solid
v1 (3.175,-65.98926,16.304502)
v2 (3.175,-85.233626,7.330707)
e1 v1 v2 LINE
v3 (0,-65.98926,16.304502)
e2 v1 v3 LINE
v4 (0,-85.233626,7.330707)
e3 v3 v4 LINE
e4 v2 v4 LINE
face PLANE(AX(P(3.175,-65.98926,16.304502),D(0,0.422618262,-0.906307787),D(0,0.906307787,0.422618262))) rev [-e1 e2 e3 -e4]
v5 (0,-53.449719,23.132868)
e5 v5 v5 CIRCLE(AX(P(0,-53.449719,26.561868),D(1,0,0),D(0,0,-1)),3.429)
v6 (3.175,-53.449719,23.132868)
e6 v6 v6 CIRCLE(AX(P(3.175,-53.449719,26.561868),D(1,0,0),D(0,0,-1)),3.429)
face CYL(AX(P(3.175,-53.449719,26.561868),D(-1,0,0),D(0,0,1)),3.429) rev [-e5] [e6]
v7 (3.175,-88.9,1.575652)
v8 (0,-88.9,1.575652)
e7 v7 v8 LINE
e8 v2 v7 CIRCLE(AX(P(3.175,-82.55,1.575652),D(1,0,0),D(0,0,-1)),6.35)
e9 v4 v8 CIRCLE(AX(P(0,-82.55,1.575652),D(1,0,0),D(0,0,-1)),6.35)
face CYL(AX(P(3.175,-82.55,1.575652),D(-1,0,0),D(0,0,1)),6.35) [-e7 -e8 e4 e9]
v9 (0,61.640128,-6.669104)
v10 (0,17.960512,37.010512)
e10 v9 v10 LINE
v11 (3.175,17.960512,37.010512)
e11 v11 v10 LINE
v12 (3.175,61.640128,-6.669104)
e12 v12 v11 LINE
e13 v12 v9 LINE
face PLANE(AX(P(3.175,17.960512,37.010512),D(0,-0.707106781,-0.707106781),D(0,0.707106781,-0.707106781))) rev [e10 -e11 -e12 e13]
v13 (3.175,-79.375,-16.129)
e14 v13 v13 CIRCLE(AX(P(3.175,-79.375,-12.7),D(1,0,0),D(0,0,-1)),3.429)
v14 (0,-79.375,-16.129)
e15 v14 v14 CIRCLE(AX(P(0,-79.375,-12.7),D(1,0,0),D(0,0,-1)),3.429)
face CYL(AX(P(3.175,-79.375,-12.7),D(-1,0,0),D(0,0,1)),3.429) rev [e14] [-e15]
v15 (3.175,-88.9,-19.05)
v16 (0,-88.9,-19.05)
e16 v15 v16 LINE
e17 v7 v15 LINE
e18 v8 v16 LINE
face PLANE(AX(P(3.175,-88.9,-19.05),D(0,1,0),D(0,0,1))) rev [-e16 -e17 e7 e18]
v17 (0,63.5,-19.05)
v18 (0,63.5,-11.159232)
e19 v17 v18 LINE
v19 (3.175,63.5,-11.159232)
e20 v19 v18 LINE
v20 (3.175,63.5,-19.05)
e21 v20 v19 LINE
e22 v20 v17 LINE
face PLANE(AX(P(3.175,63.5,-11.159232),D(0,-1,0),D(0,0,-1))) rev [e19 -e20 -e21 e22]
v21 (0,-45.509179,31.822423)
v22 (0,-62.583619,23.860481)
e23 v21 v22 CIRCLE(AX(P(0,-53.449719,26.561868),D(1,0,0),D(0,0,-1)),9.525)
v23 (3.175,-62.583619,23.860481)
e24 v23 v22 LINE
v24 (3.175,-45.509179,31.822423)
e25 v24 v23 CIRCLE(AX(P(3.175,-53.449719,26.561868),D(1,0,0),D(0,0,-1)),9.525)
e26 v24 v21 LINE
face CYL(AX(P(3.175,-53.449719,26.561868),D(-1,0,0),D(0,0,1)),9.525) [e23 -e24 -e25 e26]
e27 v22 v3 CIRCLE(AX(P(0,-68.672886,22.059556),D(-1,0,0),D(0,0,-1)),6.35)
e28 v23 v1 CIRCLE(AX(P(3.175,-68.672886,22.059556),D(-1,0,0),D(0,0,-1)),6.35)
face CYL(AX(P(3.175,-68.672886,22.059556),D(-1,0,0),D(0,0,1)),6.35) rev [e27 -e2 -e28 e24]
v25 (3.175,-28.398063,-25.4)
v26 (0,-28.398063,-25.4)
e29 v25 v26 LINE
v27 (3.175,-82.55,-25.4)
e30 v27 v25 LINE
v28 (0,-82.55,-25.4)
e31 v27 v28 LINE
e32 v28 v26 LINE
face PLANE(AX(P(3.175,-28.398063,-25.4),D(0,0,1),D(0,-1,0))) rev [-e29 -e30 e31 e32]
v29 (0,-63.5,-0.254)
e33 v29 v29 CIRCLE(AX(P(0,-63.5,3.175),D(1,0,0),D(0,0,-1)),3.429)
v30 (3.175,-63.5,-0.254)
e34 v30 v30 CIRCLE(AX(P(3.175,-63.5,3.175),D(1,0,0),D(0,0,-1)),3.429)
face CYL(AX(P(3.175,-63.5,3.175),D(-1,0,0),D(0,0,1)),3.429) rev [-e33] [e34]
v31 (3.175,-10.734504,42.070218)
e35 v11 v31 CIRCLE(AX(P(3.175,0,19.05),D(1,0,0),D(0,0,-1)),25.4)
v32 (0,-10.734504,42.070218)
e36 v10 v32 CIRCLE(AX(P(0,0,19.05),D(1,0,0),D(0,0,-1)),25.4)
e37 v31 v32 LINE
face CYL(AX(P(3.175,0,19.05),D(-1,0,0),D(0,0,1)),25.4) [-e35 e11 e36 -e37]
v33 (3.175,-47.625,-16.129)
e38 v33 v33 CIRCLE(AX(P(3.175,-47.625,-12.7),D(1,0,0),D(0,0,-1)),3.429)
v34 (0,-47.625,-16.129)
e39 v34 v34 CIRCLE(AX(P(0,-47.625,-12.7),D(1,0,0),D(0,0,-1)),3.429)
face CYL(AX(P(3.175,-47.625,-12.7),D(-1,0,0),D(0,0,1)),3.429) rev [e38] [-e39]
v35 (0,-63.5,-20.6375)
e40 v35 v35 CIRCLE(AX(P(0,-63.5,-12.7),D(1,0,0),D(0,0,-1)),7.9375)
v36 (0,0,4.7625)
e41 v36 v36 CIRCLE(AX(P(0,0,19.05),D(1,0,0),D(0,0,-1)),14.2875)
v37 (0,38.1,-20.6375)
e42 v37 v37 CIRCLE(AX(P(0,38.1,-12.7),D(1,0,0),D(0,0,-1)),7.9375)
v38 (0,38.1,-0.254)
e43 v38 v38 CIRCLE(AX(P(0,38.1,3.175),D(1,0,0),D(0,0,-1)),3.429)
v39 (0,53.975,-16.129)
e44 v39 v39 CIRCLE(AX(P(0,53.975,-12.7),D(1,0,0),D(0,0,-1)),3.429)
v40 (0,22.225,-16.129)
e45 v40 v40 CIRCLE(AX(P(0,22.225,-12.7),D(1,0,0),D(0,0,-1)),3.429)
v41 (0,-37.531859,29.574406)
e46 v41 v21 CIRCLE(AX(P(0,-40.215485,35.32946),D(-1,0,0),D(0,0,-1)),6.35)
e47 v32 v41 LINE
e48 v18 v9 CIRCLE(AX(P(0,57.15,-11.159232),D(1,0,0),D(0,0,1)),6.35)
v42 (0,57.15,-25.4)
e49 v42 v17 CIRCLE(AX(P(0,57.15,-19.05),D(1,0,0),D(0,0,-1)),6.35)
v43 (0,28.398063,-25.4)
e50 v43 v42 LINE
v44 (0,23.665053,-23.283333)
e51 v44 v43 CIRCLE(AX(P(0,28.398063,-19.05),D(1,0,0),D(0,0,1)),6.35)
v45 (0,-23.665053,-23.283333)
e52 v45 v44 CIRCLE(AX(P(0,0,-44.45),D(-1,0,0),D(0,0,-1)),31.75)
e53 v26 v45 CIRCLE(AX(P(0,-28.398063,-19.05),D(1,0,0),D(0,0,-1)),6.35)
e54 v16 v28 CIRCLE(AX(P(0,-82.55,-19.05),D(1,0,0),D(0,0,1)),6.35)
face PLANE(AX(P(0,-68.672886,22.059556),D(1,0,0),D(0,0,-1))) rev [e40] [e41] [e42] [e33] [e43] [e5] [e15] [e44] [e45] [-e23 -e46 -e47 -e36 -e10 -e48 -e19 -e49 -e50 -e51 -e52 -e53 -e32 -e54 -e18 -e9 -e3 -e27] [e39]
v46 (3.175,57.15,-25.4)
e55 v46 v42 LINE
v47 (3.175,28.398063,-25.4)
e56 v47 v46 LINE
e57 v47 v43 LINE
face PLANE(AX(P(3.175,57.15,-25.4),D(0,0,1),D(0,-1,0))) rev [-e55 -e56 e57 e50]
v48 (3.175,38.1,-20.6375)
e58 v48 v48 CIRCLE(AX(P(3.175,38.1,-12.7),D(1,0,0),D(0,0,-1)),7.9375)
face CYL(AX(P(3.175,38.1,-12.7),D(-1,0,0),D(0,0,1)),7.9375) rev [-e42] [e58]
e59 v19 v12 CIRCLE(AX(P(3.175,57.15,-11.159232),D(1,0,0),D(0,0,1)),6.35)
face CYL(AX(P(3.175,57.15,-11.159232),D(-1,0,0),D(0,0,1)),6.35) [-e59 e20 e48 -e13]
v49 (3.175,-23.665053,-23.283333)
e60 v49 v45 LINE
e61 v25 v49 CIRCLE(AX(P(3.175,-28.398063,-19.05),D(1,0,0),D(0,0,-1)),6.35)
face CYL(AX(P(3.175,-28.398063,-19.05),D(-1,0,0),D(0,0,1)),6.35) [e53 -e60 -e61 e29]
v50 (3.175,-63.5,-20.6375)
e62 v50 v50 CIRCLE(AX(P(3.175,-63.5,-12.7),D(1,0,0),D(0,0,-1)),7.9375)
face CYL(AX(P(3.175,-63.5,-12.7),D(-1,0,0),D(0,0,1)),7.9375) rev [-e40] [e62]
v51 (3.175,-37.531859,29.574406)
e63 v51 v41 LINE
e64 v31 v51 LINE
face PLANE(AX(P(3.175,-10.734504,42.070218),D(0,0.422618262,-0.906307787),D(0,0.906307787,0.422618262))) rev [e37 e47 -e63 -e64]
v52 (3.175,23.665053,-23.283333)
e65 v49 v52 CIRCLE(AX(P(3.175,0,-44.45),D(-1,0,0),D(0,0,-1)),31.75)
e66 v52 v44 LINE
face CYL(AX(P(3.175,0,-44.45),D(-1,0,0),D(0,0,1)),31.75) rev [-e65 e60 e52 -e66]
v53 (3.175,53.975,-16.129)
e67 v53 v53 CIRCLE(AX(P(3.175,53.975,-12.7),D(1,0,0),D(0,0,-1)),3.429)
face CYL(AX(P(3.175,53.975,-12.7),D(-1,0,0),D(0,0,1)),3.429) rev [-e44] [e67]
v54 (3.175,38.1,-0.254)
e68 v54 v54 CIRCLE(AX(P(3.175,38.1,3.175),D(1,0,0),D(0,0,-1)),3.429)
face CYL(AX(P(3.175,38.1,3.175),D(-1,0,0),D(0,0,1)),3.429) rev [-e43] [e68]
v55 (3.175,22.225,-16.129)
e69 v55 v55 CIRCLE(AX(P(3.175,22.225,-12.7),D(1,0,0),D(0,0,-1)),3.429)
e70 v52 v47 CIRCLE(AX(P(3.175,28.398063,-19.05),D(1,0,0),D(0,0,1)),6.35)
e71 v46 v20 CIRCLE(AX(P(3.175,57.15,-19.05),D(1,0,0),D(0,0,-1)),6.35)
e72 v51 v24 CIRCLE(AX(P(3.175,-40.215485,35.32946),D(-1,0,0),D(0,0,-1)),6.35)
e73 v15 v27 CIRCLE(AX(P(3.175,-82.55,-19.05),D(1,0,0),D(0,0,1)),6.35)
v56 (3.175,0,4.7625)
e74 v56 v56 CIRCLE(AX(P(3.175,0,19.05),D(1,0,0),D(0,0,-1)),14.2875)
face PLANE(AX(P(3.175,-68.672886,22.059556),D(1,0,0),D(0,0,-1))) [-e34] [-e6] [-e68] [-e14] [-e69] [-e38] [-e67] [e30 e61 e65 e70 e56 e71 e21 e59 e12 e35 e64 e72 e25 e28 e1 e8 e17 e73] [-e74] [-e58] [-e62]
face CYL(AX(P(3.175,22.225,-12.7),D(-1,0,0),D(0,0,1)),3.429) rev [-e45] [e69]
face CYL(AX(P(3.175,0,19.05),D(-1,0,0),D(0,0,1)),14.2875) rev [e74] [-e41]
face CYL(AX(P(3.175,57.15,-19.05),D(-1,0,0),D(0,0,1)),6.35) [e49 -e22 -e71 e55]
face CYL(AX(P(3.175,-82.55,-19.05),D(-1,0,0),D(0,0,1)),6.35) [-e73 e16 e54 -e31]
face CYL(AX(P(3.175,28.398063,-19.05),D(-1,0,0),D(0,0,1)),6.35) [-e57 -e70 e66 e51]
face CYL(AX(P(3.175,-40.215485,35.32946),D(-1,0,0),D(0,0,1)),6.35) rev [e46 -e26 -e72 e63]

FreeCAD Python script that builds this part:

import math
import FreeCAD as App
import Part
import Sketcher

V = App.Vector
Q = App.Units.Quantity

doc = App.newDocument("Part")
body = doc.addObject("PartDesign::Body", "Body")

sketch1 = body.newObject("Sketcher::SketchObject", "Sketch")
sketch1.AttachmentSupport = (doc.getObject("YZ_Plane"), [""])
sketch1.MapMode = "FlatFace"
sketch1.addGeometry(Part.LineSegment(V(28.398063, -25.4, 0), V(57.15, -25.4, 0)), False)
sketch1.addGeometry(Part.ArcOfCircle(Part.Circle(V(57.15, -19.05, 0), V(0, 0, 1), 6.35), math.radians(-90), math.radians(0)), False)
sketch1.addGeometry(Part.LineSegment(V(63.5, -19.05, 0), V(63.5, -11.159232, 0)), False)
sketch1.addGeometry(Part.ArcOfCircle(Part.Circle(V(57.15, -11.159232, 0), V(0, 0, 1), 6.35), math.radians(0), math.radians(45)), False)
sketch1.addGeometry(Part.LineSegment(V(61.640128, -6.669104, 0), V(17.960512, 37.010512, 0)), False)
sketch1.addGeometry(Part.ArcOfCircle(Part.Circle(V(0, 19.05, 0), V(0, 0, 1), 25.4), math.radians(45), math.radians(115)), False)
sketch1.addGeometry(Part.LineSegment(V(-10.734504, 42.070218, 0), V(-37.531859, 29.574406, 0)), False)
sketch1.addGeometry(Part.ArcOfCircle(Part.Circle(V(-40.215485, 35.32946, 0), V(0, 0, 1), 6.35), math.radians(-146.475791), math.radians(-65)), False)
sketch1.addGeometry(Part.ArcOfCircle(Part.Circle(V(-53.449719, 26.561868, 0), V(0, 0, 1), 9.525), math.radians(33.524209), math.radians(196.475791)), False)
sketch1.addGeometry(Part.ArcOfCircle(Part.Circle(V(-68.672886, 22.059556, 0), V(0, 0, 1), 6.35), math.radians(-65), math.radians(16.475791)), False)
sketch1.addGeometry(Part.LineSegment(V(-65.98926, 16.304502, 0), V(-85.233626, 7.330707, 0)), False)
sketch1.addGeometry(Part.ArcOfCircle(Part.Circle(V(-82.55, 1.575652, 0), V(0, 0, 1), 6.35), math.radians(115), math.radians(180)), False)
sketch1.addGeometry(Part.LineSegment(V(-88.9, 1.575652, 0), V(-88.9, -19.05, 0)), False)
sketch1.addGeometry(Part.ArcOfCircle(Part.Circle(V(-82.55, -19.05, 0), V(0, 0, 1), 6.35), math.radians(180), math.radians(270)), False)
sketch1.addGeometry(Part.LineSegment(V(-82.55, -25.4, 0), V(-28.398063, -25.4, 0)), False)
sketch1.addGeometry(Part.ArcOfCircle(Part.Circle(V(-28.398063, -19.05, 0), V(0, 0, 1), 6.35), math.radians(-90), math.radians(-41.810315)), False)
sketch1.addGeometry(Part.ArcOfCircle(Part.Circle(V(0, -44.45, 0), V(0, 0, 1), 31.75), math.radians(41.810315), math.radians(138.189685)), False)
sketch1.addGeometry(Part.ArcOfCircle(Part.Circle(V(28.398063, -19.05, 0), V(0, 0, 1), 6.35), math.radians(-138.189685), math.radians(-90)), False)
sketch1.addGeometry(Part.Circle(V(-79.375, -12.7, 0), V(0, 0, 1), 3.429), False)
sketch1.addGeometry(Part.Circle(V(-63.5, -12.7, 0), V(0, 0, 1), 7.9375), False)
sketch1.addGeometry(Part.Circle(V(-63.5, 3.175, 0), V(0, 0, 1), 3.429), False)
sketch1.addGeometry(Part.Circle(V(-47.625, -12.7, 0), V(0, 0, 1), 3.429), False)
sketch1.addGeometry(Part.Circle(V(-53.449719, 26.561868, 0), V(0, 0, 1), 3.429), False)
sketch1.addGeometry(Part.Circle(V(22.225, -12.7, 0), V(0, 0, 1), 3.429), False)
sketch1.addGeometry(Part.Circle(V(38.1, -12.7, 0), V(0, 0, 1), 7.9375), False)
sketch1.addGeometry(Part.Circle(V(53.975, -12.7, 0), V(0, 0, 1), 3.429), False)
sketch1.addGeometry(Part.Circle(V(38.1, 3.175, 0), V(0, 0, 1), 3.429), False)
sketch1.addGeometry(Part.Circle(V(0, 19.05, 0), V(0, 0, 1), 14.2875), False)
sketch1.addConstraint(Sketcher.Constraint("Tangent", 0, 2, 1, 1))
sketch1.addConstraint(Sketcher.Constraint("Tangent", 1, 2, 2, 1))
sketch1.addConstraint(Sketcher.Constraint("Tangent", 2, 2, 3, 1))
sketch1.addConstraint(Sketcher.Constraint("Tangent", 3, 2, 4, 1))
sketch1.addConstraint(Sketcher.Constraint("Tangent", 4, 2, 5, 1))
sketch1.addConstraint(Sketcher.Constraint("Tangent", 5, 2, 6, 1))
sketch1.addConstraint(Sketcher.Constraint("Tangent", 6, 2, 7, 2))
sketch1.addConstraint(Sketcher.Constraint("Tangent", 7, 1, 8, 1))
sketch1.addConstraint(Sketcher.Constraint("Tangent", 8, 2, 9, 2))
sketch1.addConstraint(Sketcher.Constraint("Tangent", 9, 1, 10, 1))
sketch1.addConstraint(Sketcher.Constraint("Tangent", 10, 2, 11, 1))
sketch1.addConstraint(Sketcher.Constraint("Tangent", 11, 2, 12, 1))
sketch1.addConstraint(Sketcher.Constraint("Tangent", 12, 2, 13, 1))
sketch1.addConstraint(Sketcher.Constraint("Tangent", 13, 2, 14, 1))
sketch1.addConstraint(Sketcher.Constraint("Tangent", 14, 2, 15, 1))
sketch1.addConstraint(Sketcher.Constraint("Tangent", 15, 2, 16, 2))
sketch1.addConstraint(Sketcher.Constraint("Tangent", 16, 1, 17, 1))
sketch1.addConstraint(Sketcher.Constraint("Tangent", 17, 2, 0, 1))
sketch1.addConstraint(Sketcher.Constraint("Horizontal", 0))
sketch1.addConstraint(Sketcher.Constraint("Vertical", 2))
sketch1.addConstraint(Sketcher.Constraint("Vertical", 12))
sketch1.addConstraint(Sketcher.Constraint("Horizontal", 14))
sketch1.addConstraint(Sketcher.Constraint("Coincident", 22, 3, 8, 3))
sketch1.addConstraint(Sketcher.Constraint("Coincident", 27, 3, 5, 3))
sketch1.addConstraint(Sketcher.Constraint("Equal", 1, 3))
sketch1.addConstraint(Sketcher.Constraint("Equal", 3, 7))
sketch1.addConstraint(Sketcher.Constraint("Equal", 7, 9))
sketch1.addConstraint(Sketcher.Constraint("Equal", 9, 11))
sketch1.addConstraint(Sketcher.Constraint("Equal", 11, 13))
sketch1.addConstraint(Sketcher.Constraint("Equal", 13, 15))
sketch1.addConstraint(Sketcher.Constraint("Equal", 15, 17))
sketch1.addConstraint(Sketcher.Constraint("Equal", 18, 20))
sketch1.addConstraint(Sketcher.Constraint("Equal", 20, 21))
sketch1.addConstraint(Sketcher.Constraint("Equal", 21, 22))
sketch1.addConstraint(Sketcher.Constraint("Equal", 22, 23))
sketch1.addConstraint(Sketcher.Constraint("Equal", 19, 24))
sketch1.addConstraint(Sketcher.Constraint("Equal", 23, 25))
sketch1.addConstraint(Sketcher.Constraint("Equal", 25, 26))
sketch1.addConstraint(Sketcher.Constraint("Symmetric", 15, 3, 17, 3, -2))
sketch1.addConstraint(Sketcher.Constraint("PointOnObject", 5, 3, -2))
sketch1.addConstraint(Sketcher.Constraint("Parallel", 6, 10))
sketch1.addConstraint(Sketcher.Constraint("Horizontal", 18, 3, 19, 3))
sketch1.addConstraint(Sketcher.Constraint("Horizontal", 19, 3, 21, 3))
sketch1.addConstraint(Sketcher.Constraint("Horizontal", 21, 3, 23, 3))
sketch1.addConstraint(Sketcher.Constraint("Horizontal", 23, 3, 24, 3))
sketch1.addConstraint(Sketcher.Constraint("Horizontal", 24, 3, 25, 3))
sketch1.addConstraint(Sketcher.Constraint("Horizontal", 20, 3, 26, 3))
sketch1.addConstraint(Sketcher.Constraint("Vertical", 19, 3, 20, 3))
sketch1.addConstraint(Sketcher.Constraint("Vertical", 24, 3, 26, 3))
sketch1.addConstraint(Sketcher.Constraint("Radius", 5, Q("1 in")))
sketch1.addConstraint(Sketcher.Constraint("Diameter", 18, Q("0.27 in")))
sketch1.addConstraint(Sketcher.Constraint("Radius", 1, Q("0.25 in")))
sketch1.addConstraint(Sketcher.Constraint("Radius", 16, Q("1.25 in")))
sketch1.addConstraint(Sketcher.Constraint("Diameter", 19, Q("0.625 in")))
sketch1.addConstraint(Sketcher.Constraint("Diameter", 27, Q("1.125 in")))
sketch1.addConstraint(Sketcher.Constraint("DistanceY", 0, 2, -1, 1, Q("1 in")))
sketch1.addConstraint(Sketcher.Constraint("Angle", 4, Q("135 deg")))
sketch1.addConstraint(Sketcher.Constraint("Angle", 6, Q("-155 deg")))
sketch1.addConstraint(Sketcher.Constraint("Radius", 8, Q("0.375 in")))
sketch1.addConstraint(Sketcher.Constraint("DistanceY", 16, 3, 15, 3, Q("1 in")))
sketch1.addConstraint(Sketcher.Constraint("DistanceX", 24, 3, 1, 2, Q("1 in")))
sketch1.addConstraint(Sketcher.Constraint("DistanceX", 11, 2, 20, 3, Q("1 in")))
sketch1.addConstraint(Sketcher.Constraint("DistanceY", 18, 3, -1, 1, Q("0.5 in")))
sketch1.addConstraint(Sketcher.Constraint("DistanceX", 19, 3, -1, 1, Q("2.5 in")))
sketch1.addConstraint(Sketcher.Constraint("DistanceX", -1, 1, 24, 3, Q("1.5 in")))
sketch1.addConstraint(Sketcher.Constraint("DistanceY", 1, 3, 5, 3, Q("1.5 in")))
sketch1.addConstraint(Sketcher.Constraint("DistanceX", 18, 3, 21, 3, Q("1.25 in")))
sketch1.addConstraint(Sketcher.Constraint("DistanceX", 23, 3, 25, 3, Q("1.25 in")))
sketch1.addConstraint(Sketcher.Constraint("DistanceX", 18, 3, -1, 1, Q("3.125 in")))
sketch1.addConstraint(Sketcher.Constraint("DistanceY", -1, 1, 20, 3, Q("0.125 in")))
sketch1.addConstraint(Sketcher.Constraint("DistanceX", -1, 1, 23, 3, Q("0.875 in")))
sketch1.addConstraint(Sketcher.Constraint("DistanceX", 7, 1, -1, 1, Q("1.7916999 in")))
sketch1.addConstraint(Sketcher.Constraint("DistanceY", -1, 1, 9, 1, Q("16.304502 mm")))
sketch1.addConstraint(Sketcher.Constraint("DistanceY", 3, 3, 8, 3, Q("37.7211 mm")))
pad1 = body.newObject("PartDesign::Pad", "Pad")
pad1.Profile = sketch1
pad1.Length = Q("0.125 in")

doc.recompute()
